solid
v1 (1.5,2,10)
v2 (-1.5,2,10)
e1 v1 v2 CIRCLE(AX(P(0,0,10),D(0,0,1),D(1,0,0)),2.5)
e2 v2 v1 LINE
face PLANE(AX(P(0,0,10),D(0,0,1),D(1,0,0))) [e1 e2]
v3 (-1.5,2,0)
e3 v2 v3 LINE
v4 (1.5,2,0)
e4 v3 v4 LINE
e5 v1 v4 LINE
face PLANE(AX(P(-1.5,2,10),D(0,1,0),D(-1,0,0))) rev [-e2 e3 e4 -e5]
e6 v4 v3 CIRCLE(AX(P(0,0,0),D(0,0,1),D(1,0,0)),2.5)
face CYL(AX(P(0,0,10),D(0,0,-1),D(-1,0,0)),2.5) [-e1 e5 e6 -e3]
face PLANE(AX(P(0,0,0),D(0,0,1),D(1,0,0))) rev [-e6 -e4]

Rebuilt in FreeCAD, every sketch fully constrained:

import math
import FreeCAD as App
import Part
import Sketcher

V = App.Vector
Q = App.Units.Quantity

doc = App.newDocument("Part")
body = doc.addObject("PartDesign::Body", "Body")

sketch1 = doc.addObject("Sketcher::SketchObject", "Sketch")
body.addObject(sketch1)
sketch1.AttachmentSupport = (doc.XY_Plane, [""])
sketch1.MapMode = "FlatFace"
sketch1.addGeometry(Part.LineSegment(V(-1.5, 2, 0), V(1.5, 2, 0)), False)
sketch1.addGeometry(Part.ArcOfCircle(Part.Circle(V(0, 0, 0), V(0, 0, 1), 2.5), math.radians(53), math.radians(127)), False)
sketch1.addConstraint(Sketcher.Constraint("Coincident", 0, 1, 1, 2))
sketch1.addConstraint(Sketcher.Constraint("Coincident", 1, 1, 0, 2))
sketch1.addConstraint(Sketcher.Constraint("Horizontal", 0))
sketch1.addConstraint(Sketcher.Constraint("Coincident", 1, 3, -1, 1))
sketch1.addConstraint(Sketcher.Constraint("Radius", 1, Q("2.5 mm")))
sketch1.addConstraint(Sketcher.Constraint("DistanceX", 0, 1, 0, 2, Q("3 mm")))
pad1 = doc.addObject("PartDesign::Pad", "Pad")
body.addObject(pad1)
pad1.Profile = sketch1
pad1.Length = 10

doc.recompute()
